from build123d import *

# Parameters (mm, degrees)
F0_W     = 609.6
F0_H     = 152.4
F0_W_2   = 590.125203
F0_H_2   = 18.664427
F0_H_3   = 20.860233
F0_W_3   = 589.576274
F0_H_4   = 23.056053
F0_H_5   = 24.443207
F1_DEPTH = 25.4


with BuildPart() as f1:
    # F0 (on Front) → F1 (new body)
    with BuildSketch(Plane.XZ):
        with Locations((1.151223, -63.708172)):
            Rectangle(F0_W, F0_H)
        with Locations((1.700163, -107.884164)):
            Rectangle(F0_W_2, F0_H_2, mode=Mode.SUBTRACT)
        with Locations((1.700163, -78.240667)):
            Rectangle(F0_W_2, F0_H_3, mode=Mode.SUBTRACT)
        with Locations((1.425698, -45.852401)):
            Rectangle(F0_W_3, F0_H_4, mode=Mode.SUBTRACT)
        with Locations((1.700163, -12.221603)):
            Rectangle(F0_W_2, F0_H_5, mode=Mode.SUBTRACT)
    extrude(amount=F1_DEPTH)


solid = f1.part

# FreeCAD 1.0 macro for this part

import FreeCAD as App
import Part
import Sketcher

V = App.Vector
Q = App.Units.Quantity


def add_polygon(sketch, points):
    """Adds a closed chain of lines whose ends are joined by coincident constraints."""
    first, n = sketch.GeometryCount, len(points)
    for a, b in zip(points, points[1:] + points[:1]):
        sketch.addGeometry(Part.LineSegment(App.Vector(*a, 0), App.Vector(*b, 0)), False)
    for i in range(n):
        sketch.addConstraint(Sketcher.Constraint("Coincident", first + i, 2, first + (i + 1) % n, 1))

doc = App.newDocument("Part")
body = doc.addObject("PartDesign::Body", "Body")

sketch1 = body.newObject("Sketcher::SketchObject", "Sketch")
sketch1.AttachmentSupport = (doc.getObject("XZ_Plane"), [""])
sketch1.MapMode = "FlatFace"
add_polygon(sketch1, [(-303.648777, 12.491828), (-303.648777, -139.908172), (305.951223, -139.908172), (305.951223, 12.491828)])
add_polygon(sketch1, [(296.762765, -117.216377), (-293.362438, -117.216377), (-293.362438, -98.551951), (296.762765, -98.551951)])
add_polygon(sketch1, [(296.762765, -88.670783), (-293.362438, -88.670783), (-293.362438, -67.810551), (296.762765, -67.810551)])
add_polygon(sketch1, [(296.213835, -57.380428), (-293.362439, -57.380428), (-293.362439, -34.324374), (296.213835, -34.324374)])
add_polygon(sketch1, [(296.762765, -24.443206), (-293.362438, -24.443206), (-293.362438, 0), (296.762765, 0)])
sketch1.addConstraint(Sketcher.Constraint("Vertical", 0))
sketch1.addConstraint(Sketcher.Constraint("Horizontal", 1))
sketch1.addConstraint(Sketcher.Constraint("Vertical", 2))
sketch1.addConstraint(Sketcher.Constraint("Horizontal", 3))
sketch1.addConstraint(Sketcher.Constraint("Horizontal", 4))
sketch1.addConstraint(Sketcher.Constraint("Vertical", 5))
sketch1.addConstraint(Sketcher.Constraint("Horizontal", 6))
sketch1.addConstraint(Sketcher.Constraint("Vertical", 7))
sketch1.addConstraint(Sketcher.Constraint("Horizontal", 8))
sketch1.addConstraint(Sketcher.Constraint("Vertical", 9))
sketch1.addConstraint(Sketcher.Constraint("Horizontal", 10))
sketch1.addConstraint(Sketcher.Constraint("Vertical", 11))
sketch1.addConstraint(Sketcher.Constraint("Horizontal", 12))
sketch1.addConstraint(Sketcher.Constraint("Vertical", 13))
sketch1.addConstraint(Sketcher.Constraint("Horizontal", 14))
sketch1.addConstraint(Sketcher.Constraint("Vertical", 15))
sketch1.addConstraint(Sketcher.Constraint("Horizontal", 16))
sketch1.addConstraint(Sketcher.Constraint("Vertical", 17))
sketch1.addConstraint(Sketcher.Constraint("Horizontal", 18))
sketch1.addConstraint(Sketcher.Constraint("Vertical", 19))
sketch1.addConstraint(Sketcher.Constraint("PointOnObject", 17, 2, -1))
sketch1.addConstraint(Sketcher.Constraint("Vertical", 5, 2, 8, 2))
sketch1.addConstraint(Sketcher.Constraint("Vertical", 7, 2, 10, 2))
sketch1.addConstraint(Sketcher.Constraint("Vertical", 9, 2, 12, 2))
sketch1.addConstraint(Sketcher.Constraint("Vertical", 13, 2, 16, 2))
sketch1.addConstraint(Sketcher.Constraint("Vertical", 11, 2, 18, 2))
sketch1.addConstraint(Sketcher.Constraint("DistanceX", 1, 1, 1, 2, Q("24 in")))
sketch1.addConstraint(Sketcher.Constraint("DistanceY", 0, 2, 0, 1, Q("6 in")))
sketch1.addConstraint(Sketcher.Constraint("DistanceY", 5, 2, 9, 2, 30.7414))
sketch1.addConstraint(Sketcher.Constraint("DistanceX", 4, 2, 4, 1, 590.125203))
sketch1.addConstraint(Sketcher.Constraint("DistanceX", 12, 2, 12, 1, 589.576274))
sketch1.addConstraint(Sketcher.Constraint("DistanceY", 5, 1, 5, 2, 18.664427))
sketch1.addConstraint(Sketcher.Constraint("DistanceY", 9, 1, 9, 2, 20.860233))
sketch1.addConstraint(Sketcher.Constraint("DistanceY", 13, 1, 13, 2, 23.056053))
sketch1.addConstraint(Sketcher.Constraint("DistanceY", 17, 1, 17, 2, 24.443207))
sketch1.addConstraint(Sketcher.Constraint("DistanceY", 0, 2, -1, 1, 139.908172))
sketch1.addConstraint(Sketcher.Constraint("DistanceX", 4, 2, -1, 1, 293.362438))
sketch1.addConstraint(Sketcher.Constraint("DistanceY", 5, 2, -1, 1, 98.551951))
sketch1.addConstraint(Sketcher.Constraint("DistanceX", 0, 2, 4, 2, 10.286338))
sketch1.addConstraint(Sketcher.Constraint("DistanceY", 4, 2, 12, 2, 59.83595))
pad1 = body.newObject("PartDesign::Pad", "Pad")
pad1.Profile = sketch1
pad1.Length = Q("1 in")

doc.recompute()
